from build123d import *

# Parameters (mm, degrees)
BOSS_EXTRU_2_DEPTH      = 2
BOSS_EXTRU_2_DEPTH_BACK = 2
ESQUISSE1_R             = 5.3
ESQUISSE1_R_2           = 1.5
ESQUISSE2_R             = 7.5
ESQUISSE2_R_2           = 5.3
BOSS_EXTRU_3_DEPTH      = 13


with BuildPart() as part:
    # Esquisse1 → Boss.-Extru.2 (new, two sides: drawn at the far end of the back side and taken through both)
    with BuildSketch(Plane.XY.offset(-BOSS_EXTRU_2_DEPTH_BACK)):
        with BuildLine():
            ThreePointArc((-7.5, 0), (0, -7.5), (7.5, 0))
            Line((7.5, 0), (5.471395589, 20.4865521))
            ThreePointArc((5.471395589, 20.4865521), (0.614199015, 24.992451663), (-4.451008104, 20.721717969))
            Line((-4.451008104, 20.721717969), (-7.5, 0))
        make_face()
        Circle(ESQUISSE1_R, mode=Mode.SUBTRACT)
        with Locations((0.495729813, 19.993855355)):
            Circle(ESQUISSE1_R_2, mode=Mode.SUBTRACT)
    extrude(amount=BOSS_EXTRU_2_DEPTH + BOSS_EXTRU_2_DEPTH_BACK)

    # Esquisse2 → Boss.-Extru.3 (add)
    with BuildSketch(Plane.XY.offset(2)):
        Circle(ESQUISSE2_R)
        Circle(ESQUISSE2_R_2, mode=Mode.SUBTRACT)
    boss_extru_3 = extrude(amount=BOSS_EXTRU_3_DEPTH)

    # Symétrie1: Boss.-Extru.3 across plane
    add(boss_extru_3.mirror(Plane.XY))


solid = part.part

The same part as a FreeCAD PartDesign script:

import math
import FreeCAD as App
import Part
import Sketcher
from FreeCAD import Vector
Q = App.Units.Quantity

doc = App.newDocument("Part")
body = doc.addObject("PartDesign::Body", "Body")

# Sketch on XY plane
sketch1 = body.newObject("Sketcher::SketchObject", "Sketch")
sketch1.AttachmentSupport = (doc.getObject("XY_Plane"), [""])
sketch1.MapMode = "FlatFace"
sketch1.addGeometry(Part.ArcOfCircle(Part.Circle(Vector(0, 0, 0), Vector(0, 0, 1), 7.5), math.radians(180), math.radians(360)), False)
sketch1.addGeometry(Part.LineSegment(Vector(7.5, 0, 0), Vector(5.5, 20.5, 0)), False)
sketch1.addGeometry(Part.ArcOfCircle(Part.Circle(Vector(0.5, 20, 0), Vector(0, 0, 1), 5), math.radians(6), math.radians(172)), False)
sketch1.addGeometry(Part.LineSegment(Vector(-4.5, 20.7, 0), Vector(-7.5, 0, 0)), False)
sketch1.addGeometry(Part.Circle(Vector(0, 0, 0), Vector(0, 0, 1), 5.3), False)
sketch1.addGeometry(Part.Circle(Vector(0.5, 20, 0), Vector(0, 0, 1), 1.5), False)
sketch1.addConstraint(Sketcher.Constraint("Coincident", 0, 2, 1, 1))
sketch1.addConstraint(Sketcher.Constraint("Tangent", 1, 2, 2, 1))
sketch1.addConstraint(Sketcher.Constraint("Tangent", 2, 2, 3, 1))
sketch1.addConstraint(Sketcher.Constraint("Coincident", 3, 2, 0, 1))
sketch1.addConstraint(Sketcher.Constraint("Coincident", 0, 3, -1, 1))
sketch1.addConstraint(Sketcher.Constraint("Coincident", 4, 3, -1, 1))
sketch1.addConstraint(Sketcher.Constraint("Coincident", 5, 3, 2, 3))
sketch1.addConstraint(Sketcher.Constraint("PointOnObject", 0, 2, -1))
sketch1.addConstraint(Sketcher.Constraint("PointOnObject", 3, 2, -1))
sketch1.addConstraint(Sketcher.Constraint("Diameter", 5, Q("3 mm")))
sketch1.addConstraint(Sketcher.Constraint("Radius", 2, Q("5 mm")))
sketch1.addConstraint(Sketcher.Constraint("Diameter", 4, Q("10.6 mm")))
sketch1.addConstraint(Sketcher.Constraint("Radius", 0, Q("7.5 mm")))
sketch1.addConstraint(Sketcher.Constraint("Distance", 3, Q("20.944831 mm")))
sketch1.addConstraint(Sketcher.Constraint("DistanceX", -1, 1, 2, 3, Q("0.49573 mm")))
pad1 = body.newObject("PartDesign::Pad", "Pad")
pad1.Profile = sketch1
pad1.Type = "TwoLengths"
pad1.Length = 2
pad1.Length2 = 2

# Sketch on XY plane
sketch2 = body.newObject("Sketcher::SketchObject", "Sketch001")
sketch2.AttachmentSupport = (doc.getObject("XY_Plane"), [""])
sketch2.MapMode = "FlatFace"
sketch2.AttachmentOffset = App.Placement(Vector(0, 0, 2), App.Rotation())
sketch2.addGeometry(Part.Circle(Vector(0, 0, 0), Vector(0, 0, 1), 8), False)
sketch2.addGeometry(Part.Circle(Vector(0, 0, 0), Vector(0, 0, 1), 5), False)
sketch2.addConstraint(Sketcher.Constraint("Coincident", 0, 3, -1, 1))
sketch2.addConstraint(Sketcher.Constraint("Coincident", 1, 3, -1, 1))
sketch2.addConstraint(Sketcher.Constraint("Diameter", 0, Q("15 mm")))
sketch2.addConstraint(Sketcher.Constraint("Diameter", 1, Q("10.6 mm")))
pad2 = body.newObject("PartDesign::Pad", "Pad001")
pad2.Profile = sketch2
pad2.Length = 13
doc.recompute()

mirrored = body.newObject("PartDesign::Mirrored", "Mirrored")
mirrored.Originals = [pad2]
mirrored.MirrorPlane = (doc.getObject("XY_Plane"), [""])
body.Tip = mirrored

doc.recompute()
